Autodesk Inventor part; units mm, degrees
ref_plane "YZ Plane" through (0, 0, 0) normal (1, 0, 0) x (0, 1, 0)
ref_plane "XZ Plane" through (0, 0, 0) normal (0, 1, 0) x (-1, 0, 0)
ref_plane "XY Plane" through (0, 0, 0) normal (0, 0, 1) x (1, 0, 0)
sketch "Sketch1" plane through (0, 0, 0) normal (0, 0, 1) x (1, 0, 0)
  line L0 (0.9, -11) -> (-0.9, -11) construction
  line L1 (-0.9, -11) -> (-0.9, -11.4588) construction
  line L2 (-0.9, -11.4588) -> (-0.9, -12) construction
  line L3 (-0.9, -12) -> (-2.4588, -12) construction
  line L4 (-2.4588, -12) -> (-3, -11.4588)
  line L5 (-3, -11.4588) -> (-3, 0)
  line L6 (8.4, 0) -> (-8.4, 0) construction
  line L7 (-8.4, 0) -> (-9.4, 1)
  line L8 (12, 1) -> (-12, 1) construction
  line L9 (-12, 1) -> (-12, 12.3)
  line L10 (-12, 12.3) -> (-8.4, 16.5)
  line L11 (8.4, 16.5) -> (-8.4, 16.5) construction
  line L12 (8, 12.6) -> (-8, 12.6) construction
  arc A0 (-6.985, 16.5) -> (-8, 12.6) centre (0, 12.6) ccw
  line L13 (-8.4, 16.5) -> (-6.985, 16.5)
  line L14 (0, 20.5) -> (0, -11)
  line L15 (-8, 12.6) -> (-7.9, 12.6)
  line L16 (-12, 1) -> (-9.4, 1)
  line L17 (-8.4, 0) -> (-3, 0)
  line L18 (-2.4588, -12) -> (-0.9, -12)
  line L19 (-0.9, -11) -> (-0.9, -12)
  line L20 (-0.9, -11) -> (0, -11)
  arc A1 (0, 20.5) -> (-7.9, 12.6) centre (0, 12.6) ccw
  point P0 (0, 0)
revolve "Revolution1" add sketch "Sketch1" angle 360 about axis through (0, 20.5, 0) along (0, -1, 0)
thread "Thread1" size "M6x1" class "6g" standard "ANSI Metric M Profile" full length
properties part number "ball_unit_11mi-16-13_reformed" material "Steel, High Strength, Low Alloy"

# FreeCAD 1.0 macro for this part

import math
import FreeCAD as App
import Part
import Sketcher
from FreeCAD import Vector
Q = App.Units.Quantity

doc = App.newDocument("Part")
body = doc.addObject("PartDesign::Body", "Body")

# Sketch on XY plane
sketch1 = body.newObject("Sketcher::SketchObject", "Sketch")
sketch1.AttachmentSupport = (doc.getObject("XY_Plane"), [""])
sketch1.MapMode = "FlatFace"
sketch1.addGeometry(Part.LineSegment(Vector(-3, -11.46, 0), Vector(-2.46, -12, 0)), False)
sketch1.addGeometry(Part.LineSegment(Vector(-2.46, -12, 0), Vector(-0.9, -12, 0)), False)
sketch1.addGeometry(Part.LineSegment(Vector(-0.9, -12, 0), Vector(-0.9, -11, 0)), False)
sketch1.addGeometry(Part.LineSegment(Vector(-0.9, -11, 0), Vector(0, -11, 0)), False)
sketch1.addGeometry(Part.LineSegment(Vector(0, -11, 0), Vector(0, 20.5, 0)), False)
sketch1.addGeometry(Part.ArcOfCircle(Part.Circle(Vector(0, 12.6, 0), Vector(0, 0, 1), 7.9), math.radians(90), math.radians(180)), False)
sketch1.addGeometry(Part.LineSegment(Vector(-7.9, 12.6, 0), Vector(-8, 12.6, 0)), False)
sketch1.addGeometry(Part.ArcOfCircle(Part.Circle(Vector(0, 12.6, 0), Vector(0, 0, 1), 8), math.radians(151), math.radians(180)), False)
sketch1.addGeometry(Part.LineSegment(Vector(-6.99, 16.5, 0), Vector(-8.4, 16.5, 0)), False)
sketch1.addGeometry(Part.LineSegment(Vector(-8.4, 16.5, 0), Vector(-12, 12.3, 0)), False)
sketch1.addGeometry(Part.LineSegment(Vector(-12, 12.3, 0), Vector(-12, 1, 0)), False)
sketch1.addGeometry(Part.LineSegment(Vector(-12, 1, 0), Vector(-9.4, 1, 0)), False)
sketch1.addGeometry(Part.LineSegment(Vector(-9.4, 1, 0), Vector(-8.4, 0, 0)), False)
sketch1.addGeometry(Part.LineSegment(Vector(-8.4, 0, 0), Vector(-3, 0, 0)), False)
sketch1.addGeometry(Part.LineSegment(Vector(-3, 0, 0), Vector(-3, -11.46, 0)), False)
sketch1.addConstraint(Sketcher.Constraint("Coincident", 0, 2, 1, 1))
sketch1.addConstraint(Sketcher.Constraint("Coincident", 1, 2, 2, 1))
sketch1.addConstraint(Sketcher.Constraint("Coincident", 2, 2, 3, 1))
sketch1.addConstraint(Sketcher.Constraint("Coincident", 3, 2, 4, 1))
sketch1.addConstraint(Sketcher.Constraint("Coincident", 4, 2, 5, 1))
sketch1.addConstraint(Sketcher.Constraint("Coincident", 5, 2, 6, 1))
sketch1.addConstraint(Sketcher.Constraint("Coincident", 6, 2, 7, 2))
sketch1.addConstraint(Sketcher.Constraint("Coincident", 7, 1, 8, 1))
sketch1.addConstraint(Sketcher.Constraint("Coincident", 8, 2, 9, 1))
sketch1.addConstraint(Sketcher.Constraint("Coincident", 9, 2, 10, 1))
sketch1.addConstraint(Sketcher.Constraint("Coincident", 10, 2, 11, 1))
sketch1.addConstraint(Sketcher.Constraint("Coincident", 11, 2, 12, 1))
sketch1.addConstraint(Sketcher.Constraint("Coincident", 12, 2, 13, 1))
sketch1.addConstraint(Sketcher.Constraint("Coincident", 13, 2, 14, 1))
sketch1.addConstraint(Sketcher.Constraint("Coincident", 14, 2, 0, 1))
sketch1.addConstraint(Sketcher.Constraint("Horizontal", 1))
sketch1.addConstraint(Sketcher.Constraint("Vertical", 2))
sketch1.addConstraint(Sketcher.Constraint("Horizontal", 3))
sketch1.addConstraint(Sketcher.Constraint("Vertical", 4))
sketch1.addConstraint(Sketcher.Constraint("Horizontal", 6))
sketch1.addConstraint(Sketcher.Constraint("Horizontal", 8))
sketch1.addConstraint(Sketcher.Constraint("Vertical", 10))
sketch1.addConstraint(Sketcher.Constraint("Horizontal", 11))
sketch1.addConstraint(Sketcher.Constraint("Horizontal", 13))
sketch1.addConstraint(Sketcher.Constraint("Vertical", 14))
sketch1.addConstraint(Sketcher.Constraint("Coincident", 7, 3, 5, 3))
sketch1.addConstraint(Sketcher.Constraint("PointOnObject", 5, 3, -2))
sketch1.addConstraint(Sketcher.Constraint("PointOnObject", 3, 2, -2))
sketch1.addConstraint(Sketcher.Constraint("PointOnObject", 12, 2, -1))
sketch1.addConstraint(Sketcher.Constraint("Parallel", 0, 12))
sketch1.addConstraint(Sketcher.Constraint("Horizontal", 7, 3, 5, 2))
sketch1.addConstraint(Sketcher.Constraint("Vertical", 8, 2, 12, 2))
sketch1.addConstraint(Sketcher.Constraint("Radius", 7, Q("8 mm")))
sketch1.addConstraint(Sketcher.Constraint("Radius", 5, Q("7.9 mm")))
sketch1.addConstraint(Sketcher.Constraint("DistanceY", 2, 1, 2, 2, Q("1 mm")))
sketch1.addConstraint(Sketcher.Constraint("Angle", 0, Q("-45 deg")))
sketch1.addConstraint(Sketcher.Constraint("DistanceX", 3, 1, 3, 2, Q("0.9 mm")))
sketch1.addConstraint(Sketcher.Constraint("DistanceX", 11, 1, 11, 2, Q("2.6 mm")))
sketch1.addConstraint(Sketcher.Constraint("DistanceX", 13, 1, 13, 2, Q("5.4 mm")))
sketch1.addConstraint(Sketcher.Constraint("DistanceY", 4, 1, 4, 2, Q("31.5 mm")))
sketch1.addConstraint(Sketcher.Constraint("DistanceY", 10, 2, 10, 1, Q("11.3 mm")))
sketch1.addConstraint(Sketcher.Constraint("DistanceY", 0, 2, -1, 1, Q("12 mm")))
sketch1.addConstraint(Sketcher.Constraint("DistanceX", 9, 2, -1, 1, Q("12 mm")))
sketch1.addConstraint(Sketcher.Constraint("DistanceY", -1, 1, 10, 2, Q("1 mm")))
sketch1.addConstraint(Sketcher.Constraint("DistanceY", 7, 1, 4, 2, Q("4 mm")))
sketch1.addConstraint(Sketcher.Constraint("DistanceX", 1, 1, 1, 2, Q("1.5588 mm")))
revolution = body.newObject("PartDesign::Revolution", "Revolution")
revolution.Profile = sketch1
revolution.ReferenceAxis = (sketch1, ["V_Axis"])
revolution.Angle = 360

doc.recompute()
